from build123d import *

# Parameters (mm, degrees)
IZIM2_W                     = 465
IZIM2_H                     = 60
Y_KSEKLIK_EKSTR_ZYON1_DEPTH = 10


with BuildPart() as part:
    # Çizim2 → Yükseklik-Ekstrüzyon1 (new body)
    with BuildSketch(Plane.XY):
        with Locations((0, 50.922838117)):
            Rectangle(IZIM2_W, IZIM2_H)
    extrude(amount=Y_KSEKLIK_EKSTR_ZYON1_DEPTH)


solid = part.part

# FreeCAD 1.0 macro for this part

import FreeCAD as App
import Part
import Sketcher
Q = App.Units.Quantity


def add_polygon(sketch, points):
    """Adds a closed chain of lines whose ends are joined by coincident constraints."""
    first, n = sketch.GeometryCount, len(points)
    for a, b in zip(points, points[1:] + points[:1]):
        sketch.addGeometry(Part.LineSegment(App.Vector(*a, 0), App.Vector(*b, 0)), False)
    for i in range(n):
        sketch.addConstraint(Sketcher.Constraint("Coincident", first + i, 2, first + (i + 1) % n, 1))

doc = App.newDocument("Part")
body = doc.addObject("PartDesign::Body", "Body")

# Sketch on XY plane
sketch1 = doc.addObject("Sketcher::SketchObject", "Sketch")
body.addObject(sketch1)
sketch1.AttachmentSupport = (doc.XY_Plane, [""])
sketch1.MapMode = "FlatFace"
add_polygon(sketch1, [(-232, 81), (-232, 21), (232, 21), (232, 81)])  # lines 0-3
sketch1.addConstraint(Sketcher.Constraint("Vertical", 0))
sketch1.addConstraint(Sketcher.Constraint("Horizontal", 1))
sketch1.addConstraint(Sketcher.Constraint("Vertical", 2))
sketch1.addConstraint(Sketcher.Constraint("Horizontal", 3))
sketch1.addConstraint(Sketcher.Constraint("DistanceX", 1, 1, 1, 2, Q("465 mm")))
sketch1.addConstraint(Sketcher.Constraint("DistanceY", 0, 2, 0, 1, Q("60 mm")))
sketch1.addConstraint(Sketcher.Constraint("DistanceX", 0, 2, -1, 1, Q("232.5 mm")))
sketch1.addConstraint(Sketcher.Constraint("DistanceY", -1, 1, 0, 2, Q("20.922838 mm")))
pad1 = doc.addObject("PartDesign::Pad", "Pad")
body.addObject(pad1)
pad1.Profile = sketch1
pad1.Length = 10

doc.recompute()
